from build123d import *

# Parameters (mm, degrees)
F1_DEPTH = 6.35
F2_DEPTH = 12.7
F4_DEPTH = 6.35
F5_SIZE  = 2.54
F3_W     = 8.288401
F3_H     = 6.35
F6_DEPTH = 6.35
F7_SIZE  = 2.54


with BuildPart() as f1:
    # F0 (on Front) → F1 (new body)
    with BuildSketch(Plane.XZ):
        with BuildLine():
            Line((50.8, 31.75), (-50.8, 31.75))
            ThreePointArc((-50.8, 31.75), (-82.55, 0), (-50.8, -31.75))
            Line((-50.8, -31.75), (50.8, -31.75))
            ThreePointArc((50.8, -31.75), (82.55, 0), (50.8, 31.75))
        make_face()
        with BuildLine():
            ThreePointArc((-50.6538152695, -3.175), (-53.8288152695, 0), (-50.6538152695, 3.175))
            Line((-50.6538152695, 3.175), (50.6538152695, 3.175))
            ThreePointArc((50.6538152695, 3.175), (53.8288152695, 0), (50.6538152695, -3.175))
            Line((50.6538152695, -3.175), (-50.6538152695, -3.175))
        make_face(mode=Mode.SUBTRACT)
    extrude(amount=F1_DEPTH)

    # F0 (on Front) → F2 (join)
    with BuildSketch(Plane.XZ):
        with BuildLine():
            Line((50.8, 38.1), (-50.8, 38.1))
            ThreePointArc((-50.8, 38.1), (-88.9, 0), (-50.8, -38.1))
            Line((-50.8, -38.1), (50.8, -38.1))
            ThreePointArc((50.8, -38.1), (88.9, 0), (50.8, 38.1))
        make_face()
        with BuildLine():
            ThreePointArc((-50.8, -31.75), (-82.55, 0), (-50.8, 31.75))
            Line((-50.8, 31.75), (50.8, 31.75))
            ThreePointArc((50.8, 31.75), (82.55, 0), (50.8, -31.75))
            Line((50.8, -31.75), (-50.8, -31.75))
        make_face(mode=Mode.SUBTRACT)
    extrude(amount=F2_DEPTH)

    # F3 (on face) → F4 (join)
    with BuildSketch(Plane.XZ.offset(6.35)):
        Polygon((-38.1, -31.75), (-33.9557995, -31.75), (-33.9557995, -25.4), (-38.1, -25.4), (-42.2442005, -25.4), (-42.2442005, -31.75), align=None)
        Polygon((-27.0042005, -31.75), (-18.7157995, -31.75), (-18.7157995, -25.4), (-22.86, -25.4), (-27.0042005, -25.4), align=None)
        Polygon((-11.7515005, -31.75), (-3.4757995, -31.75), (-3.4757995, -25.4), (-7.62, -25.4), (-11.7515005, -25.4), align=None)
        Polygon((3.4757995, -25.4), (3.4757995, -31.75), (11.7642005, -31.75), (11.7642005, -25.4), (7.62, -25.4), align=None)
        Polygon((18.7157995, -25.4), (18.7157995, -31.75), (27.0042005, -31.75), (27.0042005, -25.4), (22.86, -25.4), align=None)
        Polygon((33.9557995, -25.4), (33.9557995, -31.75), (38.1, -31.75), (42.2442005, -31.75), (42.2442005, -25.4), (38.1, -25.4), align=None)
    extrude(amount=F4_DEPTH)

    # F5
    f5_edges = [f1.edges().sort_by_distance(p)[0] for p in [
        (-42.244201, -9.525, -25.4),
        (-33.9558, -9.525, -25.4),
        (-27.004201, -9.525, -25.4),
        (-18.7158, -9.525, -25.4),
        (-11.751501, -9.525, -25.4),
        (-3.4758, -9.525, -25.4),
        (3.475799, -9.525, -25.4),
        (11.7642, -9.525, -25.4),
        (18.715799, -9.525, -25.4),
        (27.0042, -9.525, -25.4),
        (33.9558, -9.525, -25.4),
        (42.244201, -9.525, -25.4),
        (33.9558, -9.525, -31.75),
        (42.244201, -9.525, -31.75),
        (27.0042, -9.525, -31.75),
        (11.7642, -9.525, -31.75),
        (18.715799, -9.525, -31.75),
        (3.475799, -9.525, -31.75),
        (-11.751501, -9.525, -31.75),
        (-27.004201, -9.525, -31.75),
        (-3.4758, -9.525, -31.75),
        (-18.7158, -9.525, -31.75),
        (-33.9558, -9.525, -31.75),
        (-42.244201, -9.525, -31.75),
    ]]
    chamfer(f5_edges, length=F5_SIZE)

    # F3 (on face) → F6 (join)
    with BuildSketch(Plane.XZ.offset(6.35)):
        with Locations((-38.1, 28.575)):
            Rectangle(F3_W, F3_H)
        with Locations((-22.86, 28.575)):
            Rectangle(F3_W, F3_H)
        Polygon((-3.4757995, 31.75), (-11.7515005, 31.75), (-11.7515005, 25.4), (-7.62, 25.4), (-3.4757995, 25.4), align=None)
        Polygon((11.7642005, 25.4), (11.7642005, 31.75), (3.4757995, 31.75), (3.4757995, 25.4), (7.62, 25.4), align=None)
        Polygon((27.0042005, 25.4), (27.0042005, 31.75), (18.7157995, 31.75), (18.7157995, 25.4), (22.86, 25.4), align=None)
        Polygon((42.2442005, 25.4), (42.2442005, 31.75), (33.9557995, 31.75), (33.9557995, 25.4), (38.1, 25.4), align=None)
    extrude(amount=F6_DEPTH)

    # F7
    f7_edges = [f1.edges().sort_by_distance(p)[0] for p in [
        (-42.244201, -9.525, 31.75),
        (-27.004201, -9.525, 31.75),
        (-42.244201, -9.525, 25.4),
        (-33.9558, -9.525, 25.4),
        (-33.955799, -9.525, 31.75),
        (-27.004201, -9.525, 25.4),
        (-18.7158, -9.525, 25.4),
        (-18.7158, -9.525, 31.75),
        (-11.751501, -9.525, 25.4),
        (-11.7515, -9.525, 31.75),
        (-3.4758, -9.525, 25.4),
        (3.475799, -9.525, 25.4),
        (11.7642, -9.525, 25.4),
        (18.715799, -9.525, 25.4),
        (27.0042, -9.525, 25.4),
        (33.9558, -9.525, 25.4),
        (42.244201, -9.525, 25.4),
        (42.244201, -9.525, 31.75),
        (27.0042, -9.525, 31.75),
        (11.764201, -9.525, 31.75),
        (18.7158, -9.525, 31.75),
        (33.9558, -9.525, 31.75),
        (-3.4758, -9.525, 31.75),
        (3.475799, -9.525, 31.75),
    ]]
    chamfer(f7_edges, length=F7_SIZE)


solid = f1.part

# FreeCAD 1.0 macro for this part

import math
import FreeCAD as App
import Part
import Sketcher
Q = App.Units.Quantity


def edges_at(feature, points):
    """Names of the edges that pass closest to the given points."""
    edges = feature.Shape.Edges
    near = lambda p: min(range(len(edges)), key=lambda i: edges[i].distToShape(Part.Vertex(*p))[0])
    return sorted({f"Edge{near(p) + 1}" for p in points})


def add_polygon(sketch, points):
    """Adds a closed chain of lines whose ends are joined by coincident constraints."""
    first, n = sketch.GeometryCount, len(points)
    for a, b in zip(points, points[1:] + points[:1]):
        sketch.addGeometry(Part.LineSegment(App.Vector(*a, 0), App.Vector(*b, 0)), False)
    for i in range(n):
        sketch.addConstraint(Sketcher.Constraint("Coincident", first + i, 2, first + (i + 1) % n, 1))

doc = App.newDocument("Part")
body = doc.addObject("PartDesign::Body", "Body")

# Sketch on XZ plane
sketch1 = body.newObject("Sketcher::SketchObject", "Sketch")
sketch1.AttachmentSupport = (doc.getObject("XZ_Plane"), [""])
sketch1.MapMode = "FlatFace"
sketch1.addGeometry([
    Part.LineSegment(App.Vector(50.8, 31.8, 0), App.Vector(-50.8, 31.8, 0)),  # 0
    Part.ArcOfCircle(Part.Circle(App.Vector(-50.8, 0, 0), App.Vector(0, 0, 1), 31.8), math.radians(90), math.radians(270)),  # 1
    Part.LineSegment(App.Vector(-50.8, -31.8, 0), App.Vector(50.8, -31.8, 0)),  # 2
    Part.ArcOfCircle(Part.Circle(App.Vector(50.8, 0, 0), App.Vector(0, 0, 1), 31.8), math.radians(-90), math.radians(90)),  # 3
    Part.LineSegment(App.Vector(50.7, -3.2, 0), App.Vector(-50.7, -3.2, 0)),  # 4
    Part.ArcOfCircle(Part.Circle(App.Vector(-50.7, 0, 0), App.Vector(0, 0, 1), 3.2), math.radians(90), math.radians(270)),  # 5
    Part.LineSegment(App.Vector(-50.7, 3.2, 0), App.Vector(50.7, 3.2, 0)),  # 6
    Part.ArcOfCircle(Part.Circle(App.Vector(50.7, 0, 0), App.Vector(0, 0, 1), 3.2), math.radians(-90), math.radians(90)),  # 7
], False)
sketch1.addConstraint([
    Sketcher.Constraint("Tangent", 0, 2, 1, 1),
    Sketcher.Constraint("Tangent", 1, 2, 2, 1),
    Sketcher.Constraint("Tangent", 2, 2, 3, 1),
    Sketcher.Constraint("Tangent", 3, 2, 0, 1),
    Sketcher.Constraint("Tangent", 4, 2, 5, 2),
    Sketcher.Constraint("Tangent", 5, 1, 6, 1),
    Sketcher.Constraint("Tangent", 6, 2, 7, 2),
    Sketcher.Constraint("Tangent", 7, 1, 4, 1),
    Sketcher.Constraint("Horizontal", 0),
    Sketcher.Constraint("Horizontal", 2),
    Sketcher.Constraint("Horizontal", 4),
    Sketcher.Constraint("Horizontal", 6),
    Sketcher.Constraint("Symmetric", 1, 3, 3, 3, -1, 1),
    Sketcher.Constraint("Symmetric", 5, 3, 7, 3, -1, 1),
    Sketcher.Constraint("DistanceX", 0, 2, 0, 1, Q("4 in")),
    Sketcher.Constraint("Radius", 1, Q("1.25 in")),
    Sketcher.Constraint("Radius", 5, Q("0.125 in")),
    Sketcher.Constraint("DistanceX", 4, 2, 4, 1, Q("101.307631 mm")),
])
pad1 = body.newObject("PartDesign::Pad", "Pad")
pad1.Profile = sketch1
pad1.Length = Q("0.25 in")

# Sketch on XZ plane
sketch2 = body.newObject("Sketcher::SketchObject", "Sketch001")
sketch2.AttachmentSupport = (doc.getObject("XZ_Plane"), [""])
sketch2.MapMode = "FlatFace"
sketch2.addGeometry([
    Part.LineSegment(App.Vector(51, 38, 0), App.Vector(-51, 38, 0)),  # 0
    Part.ArcOfCircle(Part.Circle(App.Vector(-51, 0, 0), App.Vector(0, 0, 1), 38), math.radians(90), math.radians(270)),  # 1
    Part.LineSegment(App.Vector(-51, -38, 0), App.Vector(51, -38, 0)),  # 2
    Part.ArcOfCircle(Part.Circle(App.Vector(51, 0, 0), App.Vector(0, 0, 1), 38), math.radians(-90), math.radians(90)),  # 3
    Part.LineSegment(App.Vector(51, -32, 0), App.Vector(-51, -32, 0)),  # 4
    Part.ArcOfCircle(Part.Circle(App.Vector(-51, 0, 0), App.Vector(0, 0, 1), 32), math.radians(90), math.radians(270)),  # 5
    Part.LineSegment(App.Vector(-51, 32, 0), App.Vector(51, 32, 0)),  # 6
    Part.ArcOfCircle(Part.Circle(App.Vector(51, 0, 0), App.Vector(0, 0, 1), 32), math.radians(-90), math.radians(90)),  # 7
], False)
sketch2.addConstraint([
    Sketcher.Constraint("Tangent", 0, 2, 1, 1),
    Sketcher.Constraint("Tangent", 1, 2, 2, 1),
    Sketcher.Constraint("Tangent", 2, 2, 3, 1),
    Sketcher.Constraint("Tangent", 3, 2, 0, 1),
    Sketcher.Constraint("Tangent", 4, 2, 5, 2),
    Sketcher.Constraint("Tangent", 5, 1, 6, 1),
    Sketcher.Constraint("Tangent", 6, 2, 7, 2),
    Sketcher.Constraint("Tangent", 7, 1, 4, 1),
    Sketcher.Constraint("Horizontal", 0),
    Sketcher.Constraint("Horizontal", 2),
    Sketcher.Constraint("Horizontal", 4),
    Sketcher.Constraint("Horizontal", 6),
    Sketcher.Constraint("Coincident", 5, 3, 1, 3),
    Sketcher.Constraint("Symmetric", 1, 3, 3, 3, -1, 1),
    Sketcher.Constraint("Vertical", 7, 3, 2, 2),
    Sketcher.Constraint("Radius", 1, Q("1.5 in")),
    Sketcher.Constraint("DistanceX", 0, 2, 0, 1, Q("4 in")),
    Sketcher.Constraint("Radius", 5, Q("1.25 in")),
])
pad2 = body.newObject("PartDesign::Pad", "Pad001")
pad2.Profile = sketch2
pad2.Length = Q("0.5 in")

# Sketch on XZ plane
sketch3 = body.newObject("Sketcher::SketchObject", "Sketch002")
sketch3.AttachmentSupport = (doc.getObject("XZ_Plane"), [""])
sketch3.MapMode = "FlatFace"
sketch3.AttachmentOffset = App.Placement(App.Vector(0, 0, 0.25 * 25.4), App.Rotation())
add_polygon(sketch3, [(-34, -32), (-34, -25), (-42, -25), (-42, -32)])  # lines 0-3
add_polygon(sketch3, [(-27, -32), (-19, -32), (-19, -25), (-27, -25)])  # lines 4-7
add_polygon(sketch3, [(-12, -32), (-3, -32), (-3, -25), (-12, -25)])  # lines 8-11
add_polygon(sketch3, [(3, -25), (3, -32), (12, -32), (12, -25)])  # lines 12-15
add_polygon(sketch3, [(19, -25), (19, -32), (27, -32), (27, -25)])  # lines 16-19
add_polygon(sketch3, [(34, -25), (34, -32), (42, -32), (42, -25)])  # lines 20-23
sketch3.addConstraint([
    Sketcher.Constraint("Vertical", 0),
    Sketcher.Constraint("Horizontal", 1),
    Sketcher.Constraint("Vertical", 2),
    Sketcher.Constraint("Horizontal", 3),
    Sketcher.Constraint("Horizontal", 4),
    Sketcher.Constraint("Vertical", 5),
    Sketcher.Constraint("Horizontal", 6),
    Sketcher.Constraint("Vertical", 7),
    Sketcher.Constraint("Horizontal", 8),
    Sketcher.Constraint("Vertical", 9),
    Sketcher.Constraint("Horizontal", 10),
    Sketcher.Constraint("Vertical", 11),
    Sketcher.Constraint("Vertical", 12),
    Sketcher.Constraint("Horizontal", 13),
    Sketcher.Constraint("Vertical", 14),
    Sketcher.Constraint("Horizontal", 15),
    Sketcher.Constraint("Vertical", 16),
    Sketcher.Constraint("Horizontal", 17),
    Sketcher.Constraint("Vertical", 18),
    Sketcher.Constraint("Horizontal", 19),
    Sketcher.Constraint("Vertical", 20),
    Sketcher.Constraint("Horizontal", 21),
    Sketcher.Constraint("Vertical", 22),
    Sketcher.Constraint("Horizontal", 23),
    Sketcher.Constraint("Symmetric", 8, 2, 12, 2, -2),
    Sketcher.Constraint("Symmetric", 4, 2, 16, 2, -2),
    Sketcher.Constraint("Symmetric", 6, 2, 18, 2, -2),
    Sketcher.Constraint("Symmetric", 3, 2, 20, 2, -2),
    Sketcher.Constraint("Symmetric", 1, 2, 22, 2, -2),
    Sketcher.Constraint("Horizontal", 3, 2, 4, 2),
    Sketcher.Constraint("Horizontal", 1, 2, 5, 2),
    Sketcher.Constraint("Horizontal", 7, 2, 8, 2),
    Sketcher.Constraint("Horizontal", 6, 2, 9, 2),
    Sketcher.Constraint("Horizontal", 10, 2, 14, 2),
    Sketcher.Constraint("Equal", 3, 4),
    Sketcher.Constraint("Equal", 6, 13),
    Sketcher.Constraint("DistanceY", 0, 2, -1, 1, Q("1 in")),
    Sketcher.Constraint("DistanceY", 0, 1, 0, 2, Q("0.25 in")),
    Sketcher.Constraint("DistanceX", 3, 2, 4, 2, Q("0.6 in")),
    Sketcher.Constraint("DistanceX", 4, 2, 8, 2, Q("0.6 in")),
    Sketcher.Constraint("DistanceX", 8, 2, 13, 2, Q("0.6 in")),
    Sketcher.Constraint("DistanceX", 1, 2, 1, 1, Q("8.288401 mm")),
    Sketcher.Constraint("DistanceX", 8, 1, 8, 2, Q("8.275701 mm")),
])
pad3 = body.newObject("PartDesign::Pad", "Pad002")
pad3.Profile = sketch3
pad3.Length = Q("0.25 in")
doc.recompute()

chamfer = body.newObject("PartDesign::Chamfer", "Chamfer")
chamfer.Base = (pad3, edges_at(pad3, [
    (-42.244, -9.525, -25.4),
    (-33.956, -9.525, -25.4),
    (-27.004, -9.525, -25.4),
    (-18.716, -9.525, -25.4),
    (-11.752, -9.525, -25.4),
    (-3.476, -9.525, -25.4),
    (3.476, -9.525, -25.4),
    (11.764, -9.525, -25.4),
    (18.716, -9.525, -25.4),
    (27.004, -9.525, -25.4),
    (33.956, -9.525, -25.4),
    (42.244, -9.525, -25.4),
    (33.956, -9.525, -31.75),
    (42.244, -9.525, -31.75),
    (27.004, -9.525, -31.75),
    (11.764, -9.525, -31.75),
    (18.716, -9.525, -31.75),
    (3.476, -9.525, -31.75),
    (-11.752, -9.525, -31.75),
    (-27.004, -9.525, -31.75),
    (-3.476, -9.525, -31.75),
    (-18.716, -9.525, -31.75),
    (-33.956, -9.525, -31.75),
    (-42.244, -9.525, -31.75),
]))
chamfer.Size = Q("0.1 in")

# Sketch on XZ plane
sketch4 = body.newObject("Sketcher::SketchObject", "Sketch003")
sketch4.AttachmentSupport = (doc.getObject("XZ_Plane"), [""])
sketch4.MapMode = "FlatFace"
sketch4.AttachmentOffset = App.Placement(App.Vector(0, 0, 0.25 * 25.4), App.Rotation())
add_polygon(sketch4, [(-42, 32), (-42, 25), (-34, 25), (-34, 32)])  # lines 0-3
add_polygon(sketch4, [(-27, 32), (-27, 25), (-19, 25), (-19, 32)])  # lines 4-7
add_polygon(sketch4, [(-3, 32), (-12, 32), (-12, 25), (-3, 25)])  # lines 8-11
add_polygon(sketch4, [(12, 25), (12, 32), (3, 32), (3, 25)])  # lines 12-15
add_polygon(sketch4, [(27, 25), (27, 32), (19, 32), (19, 25)])  # lines 16-19
add_polygon(sketch4, [(42, 25), (42, 32), (34, 32), (34, 25)])  # lines 20-23
sketch4.addConstraint([
    Sketcher.Constraint("Vertical", 0),
    Sketcher.Constraint("Horizontal", 1),
    Sketcher.Constraint("Vertical", 2),
    Sketcher.Constraint("Horizontal", 3),
    Sketcher.Constraint("Vertical", 4),
    Sketcher.Constraint("Horizontal", 5),
    Sketcher.Constraint("Vertical", 6),
    Sketcher.Constraint("Horizontal", 7),
    Sketcher.Constraint("Horizontal", 8),
    Sketcher.Constraint("Vertical", 9),
    Sketcher.Constraint("Horizontal", 10),
    Sketcher.Constraint("Vertical", 11),
    Sketcher.Constraint("Vertical", 12),
    Sketcher.Constraint("Horizontal", 13),
    Sketcher.Constraint("Vertical", 14),
    Sketcher.Constraint("Horizontal", 15),
    Sketcher.Constraint("Vertical", 16),
    Sketcher.Constraint("Horizontal", 17),
    Sketcher.Constraint("Vertical", 18),
    Sketcher.Constraint("Horizontal", 19),
    Sketcher.Constraint("Vertical", 20),
    Sketcher.Constraint("Horizontal", 21),
    Sketcher.Constraint("Vertical", 22),
    Sketcher.Constraint("Horizontal", 23),
    Sketcher.Constraint("Symmetric", 11, 2, 13, 2, -2),
    Sketcher.Constraint("Symmetric", 7, 2, 16, 2, -2),
    Sketcher.Constraint("Symmetric", 5, 2, 18, 2, -2),
    Sketcher.Constraint("Symmetric", 3, 2, 20, 2, -2),
    Sketcher.Constraint("Symmetric", 1, 2, 22, 2, -2),
    Sketcher.Constraint("Horizontal", 1, 2, 4, 2),
    Sketcher.Constraint("Horizontal", 3, 2, 6, 2),
    Sketcher.Constraint("Horizontal", 7, 2, 8, 2),
    Sketcher.Constraint("Horizontal", 5, 2, 9, 2),
    Sketcher.Constraint("Horizontal", 10, 2, 14, 2),
    Sketcher.Constraint("Equal", 3, 5),
    Sketcher.Constraint("Equal", 7, 13),
    Sketcher.Constraint("DistanceY", -1, 1, 0, 2, Q("1 in")),
    Sketcher.Constraint("DistanceY", 0, 2, 0, 1, Q("0.25 in")),
    Sketcher.Constraint("DistanceX", 0, 2, 4, 2, Q("0.6 in")),
    Sketcher.Constraint("DistanceX", 5, 2, 10, 2, Q("0.6 in")),
    Sketcher.Constraint("DistanceX", 11, 2, 12, 2, Q("0.6 in")),
    Sketcher.Constraint("DistanceX", 1, 1, 1, 2, Q("8.288401 mm")),
    Sketcher.Constraint("DistanceX", 8, 2, 8, 1, Q("8.275701 mm")),
])
pad4 = body.newObject("PartDesign::Pad", "Pad003")
pad4.Profile = sketch4
pad4.Length = Q("0.25 in")
doc.recompute()

chamfer2 = body.newObject("PartDesign::Chamfer", "Chamfer001")
chamfer2.Base = (pad4, edges_at(pad4, [
    (-42.244, -9.525, 31.75),
    (-27.004, -9.525, 31.75),
    (-42.244, -9.525, 25.4),
    (-33.956, -9.525, 25.4),
    (-33.956, -9.525, 31.75),
    (-27.004, -9.525, 25.4),
    (-18.716, -9.525, 25.4),
    (-18.716, -9.525, 31.75),
    (-11.752, -9.525, 25.4),
    (-11.752, -9.525, 31.75),
    (-3.476, -9.525, 25.4),
    (3.476, -9.525, 25.4),
    (11.764, -9.525, 25.4),
    (18.716, -9.525, 25.4),
    (27.004, -9.525, 25.4),
    (33.956, -9.525, 25.4),
    (42.244, -9.525, 25.4),
    (42.244, -9.525, 31.75),
    (27.004, -9.525, 31.75),
    (11.764, -9.525, 31.75),
    (18.716, -9.525, 31.75),
    (33.956, -9.525, 31.75),
    (-3.476, -9.525, 31.75),
    (3.476, -9.525, 31.75),
]))
chamfer2.Size = Q("0.1 in")

doc.recompute()
